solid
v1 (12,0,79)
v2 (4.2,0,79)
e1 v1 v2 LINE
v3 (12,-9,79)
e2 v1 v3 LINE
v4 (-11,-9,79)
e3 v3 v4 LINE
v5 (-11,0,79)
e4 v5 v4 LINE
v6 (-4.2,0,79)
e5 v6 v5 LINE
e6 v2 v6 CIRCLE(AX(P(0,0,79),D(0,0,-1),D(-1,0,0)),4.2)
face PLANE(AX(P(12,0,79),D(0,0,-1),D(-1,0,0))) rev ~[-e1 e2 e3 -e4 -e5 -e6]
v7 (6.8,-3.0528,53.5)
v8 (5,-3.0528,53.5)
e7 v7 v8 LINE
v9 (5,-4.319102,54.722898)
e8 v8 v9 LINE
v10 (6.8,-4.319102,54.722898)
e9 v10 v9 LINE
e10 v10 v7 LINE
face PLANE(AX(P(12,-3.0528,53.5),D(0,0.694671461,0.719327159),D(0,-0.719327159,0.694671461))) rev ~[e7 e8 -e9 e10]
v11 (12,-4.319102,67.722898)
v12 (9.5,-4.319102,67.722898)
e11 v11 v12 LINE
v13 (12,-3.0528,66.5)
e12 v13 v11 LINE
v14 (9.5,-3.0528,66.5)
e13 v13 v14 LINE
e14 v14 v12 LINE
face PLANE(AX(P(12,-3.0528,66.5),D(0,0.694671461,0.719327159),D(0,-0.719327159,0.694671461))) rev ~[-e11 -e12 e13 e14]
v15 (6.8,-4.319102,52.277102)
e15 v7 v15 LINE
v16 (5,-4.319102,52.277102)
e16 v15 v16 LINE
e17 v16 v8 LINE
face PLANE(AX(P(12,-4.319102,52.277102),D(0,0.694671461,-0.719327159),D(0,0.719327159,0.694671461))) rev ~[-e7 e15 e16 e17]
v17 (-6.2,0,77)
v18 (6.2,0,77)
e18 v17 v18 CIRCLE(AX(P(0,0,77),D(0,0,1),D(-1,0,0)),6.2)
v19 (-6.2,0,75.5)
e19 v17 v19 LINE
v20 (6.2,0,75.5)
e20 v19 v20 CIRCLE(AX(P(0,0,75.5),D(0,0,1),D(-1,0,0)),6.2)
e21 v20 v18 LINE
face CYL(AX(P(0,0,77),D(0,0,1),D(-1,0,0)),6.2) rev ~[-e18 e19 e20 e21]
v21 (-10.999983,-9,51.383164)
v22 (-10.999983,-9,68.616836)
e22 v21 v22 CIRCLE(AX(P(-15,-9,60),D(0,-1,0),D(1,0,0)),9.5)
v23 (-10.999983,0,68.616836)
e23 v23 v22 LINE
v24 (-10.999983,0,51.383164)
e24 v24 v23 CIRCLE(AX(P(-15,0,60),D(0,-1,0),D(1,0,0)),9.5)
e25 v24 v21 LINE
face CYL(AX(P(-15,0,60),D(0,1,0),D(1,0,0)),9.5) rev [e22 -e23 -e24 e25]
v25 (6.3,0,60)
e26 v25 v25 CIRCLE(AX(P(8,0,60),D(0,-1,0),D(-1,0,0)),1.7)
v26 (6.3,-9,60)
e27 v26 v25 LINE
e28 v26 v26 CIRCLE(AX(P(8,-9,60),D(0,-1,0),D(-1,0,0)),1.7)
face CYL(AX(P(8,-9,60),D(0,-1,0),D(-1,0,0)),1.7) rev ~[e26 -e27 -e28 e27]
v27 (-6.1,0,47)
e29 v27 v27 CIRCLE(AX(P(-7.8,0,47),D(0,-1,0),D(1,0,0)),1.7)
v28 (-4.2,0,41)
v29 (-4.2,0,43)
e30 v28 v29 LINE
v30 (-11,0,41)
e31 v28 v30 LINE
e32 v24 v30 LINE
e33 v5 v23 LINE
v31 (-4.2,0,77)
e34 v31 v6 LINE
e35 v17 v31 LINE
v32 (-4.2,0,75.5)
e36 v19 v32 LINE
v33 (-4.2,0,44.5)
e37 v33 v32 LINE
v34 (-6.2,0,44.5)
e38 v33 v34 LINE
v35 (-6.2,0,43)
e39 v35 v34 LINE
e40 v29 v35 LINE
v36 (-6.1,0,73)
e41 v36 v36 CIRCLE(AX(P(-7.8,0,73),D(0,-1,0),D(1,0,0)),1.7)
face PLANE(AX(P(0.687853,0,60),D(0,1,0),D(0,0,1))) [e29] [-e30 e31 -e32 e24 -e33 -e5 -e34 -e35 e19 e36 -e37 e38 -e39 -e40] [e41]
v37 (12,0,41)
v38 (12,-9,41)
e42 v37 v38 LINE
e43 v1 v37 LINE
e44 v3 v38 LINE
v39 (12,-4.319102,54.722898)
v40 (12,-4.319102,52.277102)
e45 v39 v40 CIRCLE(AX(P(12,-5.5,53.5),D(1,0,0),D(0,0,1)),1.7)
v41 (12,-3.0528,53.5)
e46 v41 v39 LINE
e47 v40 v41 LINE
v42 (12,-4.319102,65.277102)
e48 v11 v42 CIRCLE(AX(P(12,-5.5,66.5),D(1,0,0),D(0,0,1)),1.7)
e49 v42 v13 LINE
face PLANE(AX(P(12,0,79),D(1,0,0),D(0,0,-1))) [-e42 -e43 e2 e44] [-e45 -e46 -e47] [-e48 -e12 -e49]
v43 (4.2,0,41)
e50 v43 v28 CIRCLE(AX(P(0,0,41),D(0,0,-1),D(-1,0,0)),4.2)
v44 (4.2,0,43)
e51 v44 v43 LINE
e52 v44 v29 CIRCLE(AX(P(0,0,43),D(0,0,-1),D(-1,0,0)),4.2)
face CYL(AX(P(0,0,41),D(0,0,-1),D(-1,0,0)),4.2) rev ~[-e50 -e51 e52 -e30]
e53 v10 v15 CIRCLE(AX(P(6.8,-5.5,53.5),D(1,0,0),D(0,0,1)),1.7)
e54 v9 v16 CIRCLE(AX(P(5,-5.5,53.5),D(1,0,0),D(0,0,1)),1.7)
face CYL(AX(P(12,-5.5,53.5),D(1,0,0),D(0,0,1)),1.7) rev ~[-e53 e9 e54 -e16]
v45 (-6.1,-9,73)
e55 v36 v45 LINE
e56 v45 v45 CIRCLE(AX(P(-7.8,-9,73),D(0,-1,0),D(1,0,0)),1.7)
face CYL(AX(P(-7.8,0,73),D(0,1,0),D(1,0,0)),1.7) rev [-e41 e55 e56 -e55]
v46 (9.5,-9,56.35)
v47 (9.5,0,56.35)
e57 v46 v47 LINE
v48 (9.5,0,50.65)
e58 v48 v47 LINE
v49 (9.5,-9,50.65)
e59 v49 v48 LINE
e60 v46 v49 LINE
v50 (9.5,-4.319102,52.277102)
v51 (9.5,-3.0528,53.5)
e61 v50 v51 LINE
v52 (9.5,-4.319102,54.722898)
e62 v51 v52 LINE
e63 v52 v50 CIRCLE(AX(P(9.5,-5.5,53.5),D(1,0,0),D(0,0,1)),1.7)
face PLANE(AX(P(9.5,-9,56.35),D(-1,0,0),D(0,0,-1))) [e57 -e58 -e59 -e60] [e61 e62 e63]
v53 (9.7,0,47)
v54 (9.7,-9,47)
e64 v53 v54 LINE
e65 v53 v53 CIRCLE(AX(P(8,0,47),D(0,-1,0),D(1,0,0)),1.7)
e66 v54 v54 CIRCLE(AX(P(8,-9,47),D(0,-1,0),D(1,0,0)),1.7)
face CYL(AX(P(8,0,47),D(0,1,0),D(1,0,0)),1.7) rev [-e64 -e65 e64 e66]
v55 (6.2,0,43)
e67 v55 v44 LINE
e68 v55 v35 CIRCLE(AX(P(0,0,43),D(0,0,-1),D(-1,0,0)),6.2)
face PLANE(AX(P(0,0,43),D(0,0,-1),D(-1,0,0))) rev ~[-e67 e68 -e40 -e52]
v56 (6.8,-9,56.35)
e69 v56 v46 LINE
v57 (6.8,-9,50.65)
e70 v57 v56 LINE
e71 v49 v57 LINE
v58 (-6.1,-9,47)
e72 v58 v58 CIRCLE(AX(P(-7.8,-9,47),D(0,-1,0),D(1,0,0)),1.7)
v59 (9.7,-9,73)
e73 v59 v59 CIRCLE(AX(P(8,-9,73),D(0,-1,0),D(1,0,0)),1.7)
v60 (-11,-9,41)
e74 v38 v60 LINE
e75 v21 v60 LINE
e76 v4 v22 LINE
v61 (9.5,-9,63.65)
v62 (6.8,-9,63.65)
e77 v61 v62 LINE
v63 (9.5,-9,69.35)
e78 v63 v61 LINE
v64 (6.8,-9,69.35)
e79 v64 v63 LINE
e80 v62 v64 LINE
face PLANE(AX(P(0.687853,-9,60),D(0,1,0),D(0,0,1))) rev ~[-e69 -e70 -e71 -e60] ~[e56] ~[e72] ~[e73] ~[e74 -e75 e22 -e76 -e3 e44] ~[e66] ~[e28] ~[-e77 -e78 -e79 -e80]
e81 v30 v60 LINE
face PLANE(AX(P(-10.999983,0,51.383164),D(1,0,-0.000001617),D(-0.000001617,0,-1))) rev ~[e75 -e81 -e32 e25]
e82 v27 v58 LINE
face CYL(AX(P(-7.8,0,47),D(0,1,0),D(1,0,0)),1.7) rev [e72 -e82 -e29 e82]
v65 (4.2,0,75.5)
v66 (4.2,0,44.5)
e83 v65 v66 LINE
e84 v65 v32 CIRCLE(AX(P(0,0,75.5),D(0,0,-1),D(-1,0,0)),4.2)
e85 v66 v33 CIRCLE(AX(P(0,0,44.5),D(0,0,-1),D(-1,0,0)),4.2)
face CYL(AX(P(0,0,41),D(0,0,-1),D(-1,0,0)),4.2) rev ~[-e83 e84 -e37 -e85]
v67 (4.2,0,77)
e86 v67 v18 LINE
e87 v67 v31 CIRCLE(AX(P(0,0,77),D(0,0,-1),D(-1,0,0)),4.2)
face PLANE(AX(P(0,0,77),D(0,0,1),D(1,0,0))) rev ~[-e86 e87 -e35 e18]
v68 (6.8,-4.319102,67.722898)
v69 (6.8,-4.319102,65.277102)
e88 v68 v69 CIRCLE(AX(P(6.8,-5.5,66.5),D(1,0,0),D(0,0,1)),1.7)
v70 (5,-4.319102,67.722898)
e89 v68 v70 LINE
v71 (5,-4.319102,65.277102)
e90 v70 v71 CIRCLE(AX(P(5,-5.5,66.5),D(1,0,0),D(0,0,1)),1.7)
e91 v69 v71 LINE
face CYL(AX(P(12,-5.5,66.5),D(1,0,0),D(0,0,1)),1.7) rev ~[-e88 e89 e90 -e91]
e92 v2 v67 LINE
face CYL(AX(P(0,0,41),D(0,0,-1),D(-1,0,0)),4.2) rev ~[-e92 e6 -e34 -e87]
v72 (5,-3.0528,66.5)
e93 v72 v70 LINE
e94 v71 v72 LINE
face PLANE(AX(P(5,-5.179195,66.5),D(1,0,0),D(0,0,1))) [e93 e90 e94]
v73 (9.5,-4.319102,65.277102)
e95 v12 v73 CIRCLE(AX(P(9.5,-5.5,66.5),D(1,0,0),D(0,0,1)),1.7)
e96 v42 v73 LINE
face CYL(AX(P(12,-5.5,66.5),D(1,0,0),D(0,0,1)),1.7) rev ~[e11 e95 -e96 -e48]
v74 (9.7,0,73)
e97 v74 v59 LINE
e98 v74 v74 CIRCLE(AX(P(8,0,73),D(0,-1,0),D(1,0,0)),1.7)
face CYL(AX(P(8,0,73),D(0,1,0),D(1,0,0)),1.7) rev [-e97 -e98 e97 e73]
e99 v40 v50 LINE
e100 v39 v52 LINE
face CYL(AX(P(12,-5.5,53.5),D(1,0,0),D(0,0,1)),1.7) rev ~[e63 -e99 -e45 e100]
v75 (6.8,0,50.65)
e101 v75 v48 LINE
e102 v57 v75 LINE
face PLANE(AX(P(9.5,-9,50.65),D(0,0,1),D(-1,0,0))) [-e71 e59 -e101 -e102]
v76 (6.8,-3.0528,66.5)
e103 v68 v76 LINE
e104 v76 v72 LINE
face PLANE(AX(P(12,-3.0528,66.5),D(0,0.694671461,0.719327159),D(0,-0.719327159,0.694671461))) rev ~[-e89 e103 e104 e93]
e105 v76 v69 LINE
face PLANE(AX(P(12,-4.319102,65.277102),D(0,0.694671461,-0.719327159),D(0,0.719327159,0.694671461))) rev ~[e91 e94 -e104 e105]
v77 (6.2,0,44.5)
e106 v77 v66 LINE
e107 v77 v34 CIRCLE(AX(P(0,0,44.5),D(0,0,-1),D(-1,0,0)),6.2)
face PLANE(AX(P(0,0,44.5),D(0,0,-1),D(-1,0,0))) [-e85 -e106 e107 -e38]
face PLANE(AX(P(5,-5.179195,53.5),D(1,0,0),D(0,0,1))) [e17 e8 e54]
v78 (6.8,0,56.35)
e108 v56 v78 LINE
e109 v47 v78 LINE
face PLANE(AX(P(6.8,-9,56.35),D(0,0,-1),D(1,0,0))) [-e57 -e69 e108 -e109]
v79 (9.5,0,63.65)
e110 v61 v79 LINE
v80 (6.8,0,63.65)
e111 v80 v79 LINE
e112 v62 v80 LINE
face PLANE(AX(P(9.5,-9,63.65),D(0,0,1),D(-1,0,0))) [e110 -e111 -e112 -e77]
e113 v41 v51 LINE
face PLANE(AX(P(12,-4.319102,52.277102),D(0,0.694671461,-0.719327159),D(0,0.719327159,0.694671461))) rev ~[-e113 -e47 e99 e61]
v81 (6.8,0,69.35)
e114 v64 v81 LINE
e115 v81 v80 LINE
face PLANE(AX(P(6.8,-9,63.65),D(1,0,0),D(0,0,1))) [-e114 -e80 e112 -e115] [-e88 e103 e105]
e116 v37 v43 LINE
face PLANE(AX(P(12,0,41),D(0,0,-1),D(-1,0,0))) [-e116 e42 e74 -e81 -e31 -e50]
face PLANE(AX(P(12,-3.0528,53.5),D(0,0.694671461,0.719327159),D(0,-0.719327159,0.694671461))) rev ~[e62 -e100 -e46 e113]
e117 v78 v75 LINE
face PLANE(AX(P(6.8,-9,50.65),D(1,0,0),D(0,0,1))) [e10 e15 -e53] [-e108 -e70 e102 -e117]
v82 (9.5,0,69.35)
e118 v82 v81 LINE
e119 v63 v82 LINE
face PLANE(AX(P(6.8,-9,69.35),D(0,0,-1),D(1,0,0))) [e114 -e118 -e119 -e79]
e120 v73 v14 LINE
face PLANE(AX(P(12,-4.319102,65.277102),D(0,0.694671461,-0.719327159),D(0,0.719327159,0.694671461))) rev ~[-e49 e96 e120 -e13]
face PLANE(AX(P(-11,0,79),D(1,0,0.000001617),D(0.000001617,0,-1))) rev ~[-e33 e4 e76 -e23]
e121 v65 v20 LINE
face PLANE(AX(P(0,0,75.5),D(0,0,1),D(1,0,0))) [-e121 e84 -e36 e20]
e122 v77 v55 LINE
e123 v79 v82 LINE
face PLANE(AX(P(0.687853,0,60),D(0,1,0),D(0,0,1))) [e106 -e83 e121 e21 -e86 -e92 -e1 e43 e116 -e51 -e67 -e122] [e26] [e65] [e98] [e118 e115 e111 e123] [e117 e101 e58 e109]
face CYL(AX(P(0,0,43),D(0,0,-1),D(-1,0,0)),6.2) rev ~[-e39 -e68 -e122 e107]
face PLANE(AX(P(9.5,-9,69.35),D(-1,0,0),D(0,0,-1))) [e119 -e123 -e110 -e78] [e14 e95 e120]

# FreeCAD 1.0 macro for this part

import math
import FreeCAD as App
import Part
import Sketcher

V = App.Vector
Q = App.Units.Quantity

doc = App.newDocument("Part")
body = doc.addObject("PartDesign::Body", "Body")

sketch1 = body.newObject("Sketcher::SketchObject", "Sketch")
sketch1.AttachmentSupport = (doc.getObject("XZ_Plane"), [""])
sketch1.MapMode = "FlatFace"
sketch1.addGeometry([
    Part.LineSegment(V(12, 41, 0), V(12, 79, 0)),
    Part.LineSegment(V(12, 79, 0), V(-11, 79, 0)),
    Part.LineSegment(V(-11, 79, 0), V(-11, 68.6168, 0)),
    Part.ArcOfCircle(Part.Circle(V(-15, 60, 0), V(0, 0, 1), 9.49996), math.radians(-65.098826), math.radians(65.098826)),
    Part.LineSegment(V(-11, 51.3832, 0), V(-11, 41, 0)),
    Part.LineSegment(V(-11, 41, 0), V(12, 41, 0)),
    Part.Circle(V(-7.8, 47, 0), V(0, 0, 1), 1.7),
    Part.Circle(V(8, 47, 0), V(0, 0, 1), 1.7),
    Part.Circle(V(-7.8, 73, 0), V(0, 0, 1), 1.7),
    Part.Circle(V(8, 73, 0), V(0, 0, 1), 1.7),
], False)
sketch1.addConstraint([
    Sketcher.Constraint("Coincident", 0, 2, 1, 1),
    Sketcher.Constraint("Coincident", 1, 2, 2, 1),
    Sketcher.Constraint("Coincident", 2, 2, 3, 2),
    Sketcher.Constraint("Coincident", 3, 1, 4, 1),
    Sketcher.Constraint("Coincident", 4, 2, 5, 1),
    Sketcher.Constraint("Coincident", 5, 2, 0, 1),
    Sketcher.Constraint("Vertical", 0),
    Sketcher.Constraint("Horizontal", 1),
    Sketcher.Constraint("Vertical", 2),
    Sketcher.Constraint("Vertical", 4),
    Sketcher.Constraint("Horizontal", 5),
    Sketcher.Constraint("Equal", 6, 7),
    Sketcher.Constraint("Equal", 7, 8),
    Sketcher.Constraint("Equal", 8, 9),
    Sketcher.Constraint("Horizontal", 6, 3, 7, 3),
    Sketcher.Constraint("Horizontal", 8, 3, 9, 3),
    Sketcher.Constraint("Vertical", 6, 3, 8, 3),
    Sketcher.Constraint("Vertical", 7, 3, 9, 3),
    Sketcher.Constraint("Vertical", 2, 2, 3, 1),
    Sketcher.Constraint("Equal", 2, 4),
    Sketcher.Constraint("Diameter", 6, Q("3.4 mm")),
    Sketcher.Constraint("Radius", 3, Q("9.5 mm")),
    Sketcher.Constraint("DistanceX", 1, 2, 1, 1, Q("23 mm")),
    Sketcher.Constraint("DistanceY", 0, 1, 0, 2, Q("38 mm")),
    Sketcher.Constraint("DistanceX", 3, 3, -1, 1, Q("15 mm")),
    Sketcher.Constraint("DistanceY", -1, 1, 3, 3, Q("60 mm")),
    Sketcher.Constraint("DistanceY", -1, 1, 6, 3, Q("47 mm")),
    Sketcher.Constraint("DistanceX", -1, 1, 7, 3, Q("8 mm")),
    Sketcher.Constraint("DistanceY", -1, 1, 8, 3, Q("73 mm")),
    Sketcher.Constraint("DistanceX", -1, 1, 0, 2, Q("12 mm")),
    Sketcher.Constraint("DistanceX", 6, 3, -1, 1, Q("7.8 mm")),
])
pad1 = body.newObject("PartDesign::Pad", "Pad")
pad1.Profile = sketch1
pad1.Length = 9

sketch2 = body.newObject("Sketcher::SketchObject", "Sketch001")
sketch2.AttachmentSupport = (doc.getObject("XY_Plane"), [""])
sketch2.MapMode = "FlatFace"
sketch2.AttachmentOffset = App.Placement(V(0, 0, 41), App.Rotation())
sketch2.addGeometry(Part.Circle(V(0, 0, 0), V(0, 0, 1), 4.2), False)
sketch2.addConstraint([
    Sketcher.Constraint("Coincident", 0, 3, -1, 1),
    Sketcher.Constraint("Diameter", 0, Q("8.4 mm")),
])
pocket1 = body.newObject("PartDesign::Pocket", "Pocket")
pocket1.Profile = sketch2
pocket1.Type = "ThroughAll"
pocket1.Reversed = True

sketch3 = body.newObject("Sketcher::SketchObject", "Sketch002")
sketch3.AttachmentSupport = (doc.getObject("XY_Plane"), [""])
sketch3.MapMode = "FlatFace"
sketch3.AttachmentOffset = App.Placement(V(0, 0, 77), App.Rotation())
sketch3.addGeometry(Part.Circle(V(0, 0, 0), V(0, 0, 1), 6.2), False)
sketch3.addConstraint([
    Sketcher.Constraint("Coincident", 0, 3, -1, 1),
    Sketcher.Constraint("Diameter", 0, Q("12.4 mm")),
])
pocket2 = body.newObject("PartDesign::Pocket", "Pocket001")
pocket2.Profile = sketch3
pocket2.Length = 1.5

sketch4 = body.newObject("Sketcher::SketchObject", "Sketch003")
sketch4.AttachmentSupport = (doc.getObject("XY_Plane"), [""])
sketch4.MapMode = "FlatFace"
sketch4.AttachmentOffset = App.Placement(V(0, 0, 43), App.Rotation())
sketch4.addGeometry(Part.Circle(V(0, 0, 0), V(0, 0, 1), 6.2), False)
sketch4.addConstraint([
    Sketcher.Constraint("Coincident", 0, 3, -1, 1),
    Sketcher.Constraint("Diameter", 0, Q("12.4 mm")),
])
pocket3 = body.newObject("PartDesign::Pocket", "Pocket002")
pocket3.Profile = sketch4
pocket3.Length = 1.5
pocket3.Reversed = True

sketch5 = body.newObject("Sketcher::SketchObject", "Sketch004")
sketch5.AttachmentSupport = (doc.getObject("YZ_Plane"), [""])
sketch5.MapMode = "FlatFace"
sketch5.AttachmentOffset = App.Placement(V(0, 0, 12), App.Rotation())
sketch5.addGeometry([
    Part.ArcOfCircle(Part.Circle(V(-5.5, 66.5, 0), V(0, 0, 1), 1.700003), math.radians(46.000989), math.radians(313.999011)),
    Part.LineSegment(V(-4.3191, 65.2771, 0), V(-3.0528, 66.5, 0)),
    Part.LineSegment(V(-3.0528, 66.5, 0), V(-4.3191, 67.7229, 0)),
    Part.ArcOfCircle(Part.Circle(V(-5.5, 53.5, 0), V(0, 0, 1), 1.700003), math.radians(46.000989), math.radians(313.999011)),
    Part.LineSegment(V(-4.3191, 52.2771, 0), V(-3.0528, 53.5, 0)),
    Part.LineSegment(V(-3.0528, 53.5, 0), V(-4.3191, 54.7229, 0)),
], False)
sketch5.addConstraint([
    Sketcher.Constraint("Tangent", 0, 2, 1, 1),
    Sketcher.Constraint("Coincident", 1, 2, 2, 1),
    Sketcher.Constraint("Tangent", 2, 2, 0, 1),
    Sketcher.Constraint("Tangent", 3, 2, 4, 1),
    Sketcher.Constraint("Coincident", 4, 2, 5, 1),
    Sketcher.Constraint("Tangent", 5, 2, 3, 1),
    Sketcher.Constraint("Equal", 0, 3),
    Sketcher.Constraint("Parallel", 1, 4),
    Sketcher.Constraint("Parallel", 2, 5),
    Sketcher.Constraint("Horizontal", 0, 3, 1, 2),
    Sketcher.Constraint("Vertical", 0, 3, 3, 3),
    Sketcher.Constraint("Radius", 0, Q("1.7 mm")),
    Sketcher.Constraint("Angle", 1, Q("44.0011 deg")),
    Sketcher.Constraint("DistanceY", 3, 3, 0, 3, Q("13 mm")),
    Sketcher.Constraint("DistanceX", 0, 3, -1, 1, Q("5.5 mm")),
    Sketcher.Constraint("DistanceY", -1, 1, 0, 3, Q("66.5 mm")),
])
pocket4 = body.newObject("PartDesign::Pocket", "Pocket003")
pocket4.Profile = sketch5
pocket4.Length = 7

sketch6 = body.newObject("Sketcher::SketchObject", "Sketch005")
sketch6.AttachmentSupport = (doc.getObject("XZ_Plane"), [""])
sketch6.MapMode = "FlatFace"
sketch6.AttachmentOffset = App.Placement(V(0, 0, 9), App.Rotation())
sketch6.addGeometry([
    Part.LineSegment(V(6.8, 69.35, 0), V(6.8, 63.65, 0)),
    Part.LineSegment(V(6.8, 63.65, 0), V(9.5, 63.65, 0)),
    Part.LineSegment(V(9.5, 63.65, 0), V(9.5, 69.35, 0)),
    Part.LineSegment(V(9.5, 69.35, 0), V(6.8, 69.35, 0)),
    Part.LineSegment(V(9.5, 56.35, 0), V(6.8, 56.35, 0)),
    Part.LineSegment(V(6.8, 56.35, 0), V(6.8, 50.65, 0)),
    Part.LineSegment(V(6.8, 50.65, 0), V(9.5, 50.65, 0)),
    Part.LineSegment(V(9.5, 50.65, 0), V(9.5, 56.35, 0)),
], False)
sketch6.addConstraint([
    Sketcher.Constraint("Coincident", 0, 2, 1, 1),
    Sketcher.Constraint("Coincident", 1, 2, 2, 1),
    Sketcher.Constraint("Coincident", 2, 2, 3, 1),
    Sketcher.Constraint("Coincident", 3, 2, 0, 1),
    Sketcher.Constraint("Coincident", 4, 2, 5, 1),
    Sketcher.Constraint("Coincident", 5, 2, 6, 1),
    Sketcher.Constraint("Coincident", 6, 2, 7, 1),
    Sketcher.Constraint("Coincident", 7, 2, 4, 1),
    Sketcher.Constraint("Vertical", 0),
    Sketcher.Constraint("Horizontal", 1),
    Sketcher.Constraint("Vertical", 2),
    Sketcher.Constraint("Horizontal", 3),
    Sketcher.Constraint("Horizontal", 4),
    Sketcher.Constraint("Vertical", 5),
    Sketcher.Constraint("Horizontal", 6),
    Sketcher.Constraint("Vertical", 7),
    Sketcher.Constraint("Vertical", 3, 2, 4, 2),
    Sketcher.Constraint("Vertical", 2, 2, 6, 2),
    Sketcher.Constraint("Equal", 2, 5),
    Sketcher.Constraint("DistanceX", 1, 1, 1, 2, Q("2.7 mm")),
    Sketcher.Constraint("DistanceY", 0, 2, 0, 1, Q("5.7 mm")),
    Sketcher.Constraint("DistanceY", 4, 2, 3, 2, Q("13 mm")),
    Sketcher.Constraint("DistanceX", -1, 1, 0, 2, Q("6.8 mm")),
    Sketcher.Constraint("DistanceY", -1, 1, 0, 2, Q("63.65 mm")),
])
pocket5 = body.newObject("PartDesign::Pocket", "Pocket004")
pocket5.Profile = sketch6
pocket5.Type = "ThroughAll"

sketch7 = body.newObject("Sketcher::SketchObject", "Sketch006")
sketch7.AttachmentSupport = (doc.getObject("XZ_Plane"), [""])
sketch7.MapMode = "FlatFace"
sketch7.AttachmentOffset = App.Placement(V(0, 0, 9), App.Rotation())
sketch7.addGeometry(Part.Circle(V(8, 60, 0), V(0, 0, 1), 1.7), False)
sketch7.addConstraint([
    Sketcher.Constraint("Diameter", 0, Q("3.4 mm")),
    Sketcher.Constraint("DistanceX", -1, 1, 0, 3, Q("8 mm")),
    Sketcher.Constraint("DistanceY", -1, 1, 0, 3, Q("60 mm")),
])
pocket6 = body.newObject("PartDesign::Pocket", "Pocket005")
pocket6.Profile = sketch7
pocket6.Type = "ThroughAll"

doc.recompute()
